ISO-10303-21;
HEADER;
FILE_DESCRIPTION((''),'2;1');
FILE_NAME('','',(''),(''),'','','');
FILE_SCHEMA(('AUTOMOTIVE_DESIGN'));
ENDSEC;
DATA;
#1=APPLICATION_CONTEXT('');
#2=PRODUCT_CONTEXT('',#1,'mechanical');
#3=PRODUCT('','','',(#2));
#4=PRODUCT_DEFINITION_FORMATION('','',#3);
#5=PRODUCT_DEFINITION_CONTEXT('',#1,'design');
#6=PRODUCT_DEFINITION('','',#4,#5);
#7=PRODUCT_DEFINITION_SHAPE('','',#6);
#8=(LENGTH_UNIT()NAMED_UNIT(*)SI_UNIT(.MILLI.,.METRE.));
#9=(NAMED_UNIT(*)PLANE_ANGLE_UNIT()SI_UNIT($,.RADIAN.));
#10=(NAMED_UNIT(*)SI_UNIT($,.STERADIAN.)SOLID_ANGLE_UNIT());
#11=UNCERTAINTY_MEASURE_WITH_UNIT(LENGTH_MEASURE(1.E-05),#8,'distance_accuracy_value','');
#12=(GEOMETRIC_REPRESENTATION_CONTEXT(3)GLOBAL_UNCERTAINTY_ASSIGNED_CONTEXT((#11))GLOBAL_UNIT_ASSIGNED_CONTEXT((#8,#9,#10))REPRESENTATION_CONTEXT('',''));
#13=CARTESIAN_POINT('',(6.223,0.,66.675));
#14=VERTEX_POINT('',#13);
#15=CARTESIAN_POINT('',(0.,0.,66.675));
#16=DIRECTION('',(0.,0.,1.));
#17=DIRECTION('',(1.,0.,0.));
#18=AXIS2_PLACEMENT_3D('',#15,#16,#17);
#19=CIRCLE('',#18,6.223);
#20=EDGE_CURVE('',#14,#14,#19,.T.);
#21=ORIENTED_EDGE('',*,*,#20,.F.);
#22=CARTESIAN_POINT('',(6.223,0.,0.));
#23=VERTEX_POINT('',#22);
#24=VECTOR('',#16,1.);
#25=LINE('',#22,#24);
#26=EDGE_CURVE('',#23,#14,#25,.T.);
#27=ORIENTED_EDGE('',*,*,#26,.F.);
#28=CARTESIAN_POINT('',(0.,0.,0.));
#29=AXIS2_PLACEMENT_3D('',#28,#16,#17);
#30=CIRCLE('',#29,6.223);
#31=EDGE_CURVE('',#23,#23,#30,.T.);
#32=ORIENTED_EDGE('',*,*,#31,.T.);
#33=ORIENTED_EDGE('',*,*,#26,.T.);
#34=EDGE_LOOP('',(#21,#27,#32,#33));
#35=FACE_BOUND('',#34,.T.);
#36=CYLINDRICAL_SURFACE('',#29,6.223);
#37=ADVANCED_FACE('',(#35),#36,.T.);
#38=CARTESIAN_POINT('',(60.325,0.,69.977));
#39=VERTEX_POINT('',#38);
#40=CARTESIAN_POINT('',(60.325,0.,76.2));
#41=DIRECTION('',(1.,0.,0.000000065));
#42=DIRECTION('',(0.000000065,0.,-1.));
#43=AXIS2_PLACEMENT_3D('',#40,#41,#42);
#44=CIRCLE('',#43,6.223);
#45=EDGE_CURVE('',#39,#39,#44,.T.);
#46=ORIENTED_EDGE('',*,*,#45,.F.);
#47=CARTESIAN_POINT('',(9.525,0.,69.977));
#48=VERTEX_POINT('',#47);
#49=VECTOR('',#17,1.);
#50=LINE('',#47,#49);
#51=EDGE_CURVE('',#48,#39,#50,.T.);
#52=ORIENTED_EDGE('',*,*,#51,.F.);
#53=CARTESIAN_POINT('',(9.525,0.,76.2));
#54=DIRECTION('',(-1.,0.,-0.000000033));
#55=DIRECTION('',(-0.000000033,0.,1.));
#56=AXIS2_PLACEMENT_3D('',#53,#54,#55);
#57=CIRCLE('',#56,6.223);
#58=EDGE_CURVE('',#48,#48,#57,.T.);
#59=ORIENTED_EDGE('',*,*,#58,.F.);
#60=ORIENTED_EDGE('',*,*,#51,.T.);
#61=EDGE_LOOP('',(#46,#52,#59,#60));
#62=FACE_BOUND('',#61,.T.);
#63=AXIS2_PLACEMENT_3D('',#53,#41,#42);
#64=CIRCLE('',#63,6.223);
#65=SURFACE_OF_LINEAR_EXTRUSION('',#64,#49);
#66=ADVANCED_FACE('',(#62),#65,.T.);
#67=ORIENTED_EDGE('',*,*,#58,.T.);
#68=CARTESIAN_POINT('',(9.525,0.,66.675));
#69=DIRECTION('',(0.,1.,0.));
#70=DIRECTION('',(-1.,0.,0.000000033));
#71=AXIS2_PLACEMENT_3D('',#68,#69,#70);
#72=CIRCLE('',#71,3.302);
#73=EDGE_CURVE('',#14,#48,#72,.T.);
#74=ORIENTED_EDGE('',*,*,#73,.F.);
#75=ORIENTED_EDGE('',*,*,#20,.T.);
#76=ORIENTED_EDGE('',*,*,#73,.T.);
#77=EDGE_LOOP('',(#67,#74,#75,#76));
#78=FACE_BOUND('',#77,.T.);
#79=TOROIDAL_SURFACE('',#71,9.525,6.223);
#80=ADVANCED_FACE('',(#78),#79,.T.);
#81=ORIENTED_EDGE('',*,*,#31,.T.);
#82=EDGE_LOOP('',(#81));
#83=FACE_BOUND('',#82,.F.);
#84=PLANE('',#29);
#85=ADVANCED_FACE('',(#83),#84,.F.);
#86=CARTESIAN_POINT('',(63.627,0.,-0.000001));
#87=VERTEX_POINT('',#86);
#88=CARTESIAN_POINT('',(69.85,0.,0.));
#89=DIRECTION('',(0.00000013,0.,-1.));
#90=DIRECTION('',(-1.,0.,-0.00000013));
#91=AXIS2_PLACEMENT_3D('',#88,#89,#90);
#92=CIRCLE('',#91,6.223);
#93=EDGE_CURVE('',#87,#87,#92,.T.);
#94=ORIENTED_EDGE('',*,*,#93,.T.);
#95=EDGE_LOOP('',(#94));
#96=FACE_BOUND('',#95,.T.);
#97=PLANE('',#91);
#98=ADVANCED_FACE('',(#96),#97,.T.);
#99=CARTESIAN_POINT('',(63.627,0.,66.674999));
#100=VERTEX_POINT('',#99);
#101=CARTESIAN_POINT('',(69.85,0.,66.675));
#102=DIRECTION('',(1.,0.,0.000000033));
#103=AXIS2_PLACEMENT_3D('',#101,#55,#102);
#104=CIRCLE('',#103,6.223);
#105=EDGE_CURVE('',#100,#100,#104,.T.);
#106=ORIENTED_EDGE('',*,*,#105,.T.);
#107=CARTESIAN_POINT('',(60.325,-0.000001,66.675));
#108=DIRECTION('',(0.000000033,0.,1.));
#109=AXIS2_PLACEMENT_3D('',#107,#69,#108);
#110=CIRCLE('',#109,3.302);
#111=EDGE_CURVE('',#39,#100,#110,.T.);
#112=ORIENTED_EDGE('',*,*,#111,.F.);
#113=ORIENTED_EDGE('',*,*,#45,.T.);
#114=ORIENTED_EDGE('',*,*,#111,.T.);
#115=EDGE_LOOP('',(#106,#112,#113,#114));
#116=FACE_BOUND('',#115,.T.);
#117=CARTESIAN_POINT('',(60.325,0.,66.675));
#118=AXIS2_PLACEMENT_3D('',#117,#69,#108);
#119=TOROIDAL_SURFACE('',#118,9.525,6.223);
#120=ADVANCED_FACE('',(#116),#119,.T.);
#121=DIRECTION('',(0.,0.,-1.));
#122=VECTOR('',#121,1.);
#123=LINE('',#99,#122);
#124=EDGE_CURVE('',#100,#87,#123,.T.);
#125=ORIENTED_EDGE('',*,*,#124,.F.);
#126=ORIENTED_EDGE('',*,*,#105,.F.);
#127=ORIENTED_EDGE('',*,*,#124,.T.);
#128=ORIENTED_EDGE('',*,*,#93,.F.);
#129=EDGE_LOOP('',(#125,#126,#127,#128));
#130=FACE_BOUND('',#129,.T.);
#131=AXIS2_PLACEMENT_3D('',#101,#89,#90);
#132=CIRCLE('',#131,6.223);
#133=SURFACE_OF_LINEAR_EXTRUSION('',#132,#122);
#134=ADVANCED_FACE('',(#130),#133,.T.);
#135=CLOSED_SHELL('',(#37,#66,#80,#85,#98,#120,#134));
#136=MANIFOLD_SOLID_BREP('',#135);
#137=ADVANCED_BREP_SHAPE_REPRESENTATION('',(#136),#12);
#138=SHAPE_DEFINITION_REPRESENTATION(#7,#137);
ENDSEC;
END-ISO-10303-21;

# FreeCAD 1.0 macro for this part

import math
import FreeCAD as App
import Part
import Sketcher

V = App.Vector
Q = App.Units.Quantity

doc = App.newDocument("Part")
body = doc.addObject("PartDesign::Body", "Body")

# Sketch on XY plane
sketch1 = body.newObject("Sketcher::SketchObject", "Sketch")
sketch1.AttachmentSupport = (doc.getObject("XY_Plane"), [""])
sketch1.MapMode = "FlatFace"
sketch1.addGeometry(Part.Circle(V(0, 0, 0), V(0, 0, 1), 6), False)
sketch1.addConstraint(Sketcher.Constraint("Coincident", 0, 3, -1, 1))
sketch1.addConstraint(Sketcher.Constraint("Diameter", 0, Q("0.49 in")))

# Sketch on XZ plane
sketch2 = body.newObject("Sketcher::SketchObject", "Sketch001")
sketch2.AttachmentSupport = (doc.getObject("XZ_Plane"), [""])
sketch2.MapMode = "FlatFace"
sketch2.addGeometry(Part.LineSegment(V(0, 0, 0), V(0, 67, 0)), False)
sketch2.addGeometry(Part.ArcOfCircle(Part.Circle(V(10, 67, 0), V(0, 0, 1), 10), math.radians(90), math.radians(180)), False)
sketch2.addGeometry(Part.LineSegment(V(10, 76, 0), V(60, 76, 0)), False)
sketch2.addGeometry(Part.ArcOfCircle(Part.Circle(V(60, 67, 0), V(0, 0, 1), 10), math.radians(0), math.radians(90)), False)
sketch2.addGeometry(Part.LineSegment(V(70, 67, 0), V(70, 0, 0)), False)
sketch2.addConstraint(Sketcher.Constraint("Tangent", 0, 2, 1, 2))
sketch2.addConstraint(Sketcher.Constraint("Tangent", 1, 1, 2, 1))
sketch2.addConstraint(Sketcher.Constraint("Tangent", 2, 2, 3, 2))
sketch2.addConstraint(Sketcher.Constraint("Tangent", 3, 1, 4, 1))
sketch2.addConstraint(Sketcher.Constraint("Vertical", 0))
sketch2.addConstraint(Sketcher.Constraint("Horizontal", 2))
sketch2.addConstraint(Sketcher.Constraint("Vertical", 4))
sketch2.addConstraint(Sketcher.Constraint("Coincident", 0, 1, -1, 1))
sketch2.addConstraint(Sketcher.Constraint("Equal", 1, 3))
sketch2.addConstraint(Sketcher.Constraint("PointOnObject", 4, 2, -1))
sketch2.addConstraint(Sketcher.Constraint("DistanceX", 2, 1, 2, 2, Q("2 in")))
sketch2.addConstraint(Sketcher.Constraint("DistanceY", -1, 1, 1, 1, Q("3 in")))
sketch2.addConstraint(Sketcher.Constraint("Radius", 1, Q("0.375 in")))
doc.recompute()

additivepipe = body.newObject("PartDesign::AdditivePipe", "AdditivePipe")
additivepipe.Profile = sketch1
additivepipe.Spine = (sketch2, ["Edge1", "Edge2", "Edge3", "Edge4", "Edge5"])

doc.recompute()
